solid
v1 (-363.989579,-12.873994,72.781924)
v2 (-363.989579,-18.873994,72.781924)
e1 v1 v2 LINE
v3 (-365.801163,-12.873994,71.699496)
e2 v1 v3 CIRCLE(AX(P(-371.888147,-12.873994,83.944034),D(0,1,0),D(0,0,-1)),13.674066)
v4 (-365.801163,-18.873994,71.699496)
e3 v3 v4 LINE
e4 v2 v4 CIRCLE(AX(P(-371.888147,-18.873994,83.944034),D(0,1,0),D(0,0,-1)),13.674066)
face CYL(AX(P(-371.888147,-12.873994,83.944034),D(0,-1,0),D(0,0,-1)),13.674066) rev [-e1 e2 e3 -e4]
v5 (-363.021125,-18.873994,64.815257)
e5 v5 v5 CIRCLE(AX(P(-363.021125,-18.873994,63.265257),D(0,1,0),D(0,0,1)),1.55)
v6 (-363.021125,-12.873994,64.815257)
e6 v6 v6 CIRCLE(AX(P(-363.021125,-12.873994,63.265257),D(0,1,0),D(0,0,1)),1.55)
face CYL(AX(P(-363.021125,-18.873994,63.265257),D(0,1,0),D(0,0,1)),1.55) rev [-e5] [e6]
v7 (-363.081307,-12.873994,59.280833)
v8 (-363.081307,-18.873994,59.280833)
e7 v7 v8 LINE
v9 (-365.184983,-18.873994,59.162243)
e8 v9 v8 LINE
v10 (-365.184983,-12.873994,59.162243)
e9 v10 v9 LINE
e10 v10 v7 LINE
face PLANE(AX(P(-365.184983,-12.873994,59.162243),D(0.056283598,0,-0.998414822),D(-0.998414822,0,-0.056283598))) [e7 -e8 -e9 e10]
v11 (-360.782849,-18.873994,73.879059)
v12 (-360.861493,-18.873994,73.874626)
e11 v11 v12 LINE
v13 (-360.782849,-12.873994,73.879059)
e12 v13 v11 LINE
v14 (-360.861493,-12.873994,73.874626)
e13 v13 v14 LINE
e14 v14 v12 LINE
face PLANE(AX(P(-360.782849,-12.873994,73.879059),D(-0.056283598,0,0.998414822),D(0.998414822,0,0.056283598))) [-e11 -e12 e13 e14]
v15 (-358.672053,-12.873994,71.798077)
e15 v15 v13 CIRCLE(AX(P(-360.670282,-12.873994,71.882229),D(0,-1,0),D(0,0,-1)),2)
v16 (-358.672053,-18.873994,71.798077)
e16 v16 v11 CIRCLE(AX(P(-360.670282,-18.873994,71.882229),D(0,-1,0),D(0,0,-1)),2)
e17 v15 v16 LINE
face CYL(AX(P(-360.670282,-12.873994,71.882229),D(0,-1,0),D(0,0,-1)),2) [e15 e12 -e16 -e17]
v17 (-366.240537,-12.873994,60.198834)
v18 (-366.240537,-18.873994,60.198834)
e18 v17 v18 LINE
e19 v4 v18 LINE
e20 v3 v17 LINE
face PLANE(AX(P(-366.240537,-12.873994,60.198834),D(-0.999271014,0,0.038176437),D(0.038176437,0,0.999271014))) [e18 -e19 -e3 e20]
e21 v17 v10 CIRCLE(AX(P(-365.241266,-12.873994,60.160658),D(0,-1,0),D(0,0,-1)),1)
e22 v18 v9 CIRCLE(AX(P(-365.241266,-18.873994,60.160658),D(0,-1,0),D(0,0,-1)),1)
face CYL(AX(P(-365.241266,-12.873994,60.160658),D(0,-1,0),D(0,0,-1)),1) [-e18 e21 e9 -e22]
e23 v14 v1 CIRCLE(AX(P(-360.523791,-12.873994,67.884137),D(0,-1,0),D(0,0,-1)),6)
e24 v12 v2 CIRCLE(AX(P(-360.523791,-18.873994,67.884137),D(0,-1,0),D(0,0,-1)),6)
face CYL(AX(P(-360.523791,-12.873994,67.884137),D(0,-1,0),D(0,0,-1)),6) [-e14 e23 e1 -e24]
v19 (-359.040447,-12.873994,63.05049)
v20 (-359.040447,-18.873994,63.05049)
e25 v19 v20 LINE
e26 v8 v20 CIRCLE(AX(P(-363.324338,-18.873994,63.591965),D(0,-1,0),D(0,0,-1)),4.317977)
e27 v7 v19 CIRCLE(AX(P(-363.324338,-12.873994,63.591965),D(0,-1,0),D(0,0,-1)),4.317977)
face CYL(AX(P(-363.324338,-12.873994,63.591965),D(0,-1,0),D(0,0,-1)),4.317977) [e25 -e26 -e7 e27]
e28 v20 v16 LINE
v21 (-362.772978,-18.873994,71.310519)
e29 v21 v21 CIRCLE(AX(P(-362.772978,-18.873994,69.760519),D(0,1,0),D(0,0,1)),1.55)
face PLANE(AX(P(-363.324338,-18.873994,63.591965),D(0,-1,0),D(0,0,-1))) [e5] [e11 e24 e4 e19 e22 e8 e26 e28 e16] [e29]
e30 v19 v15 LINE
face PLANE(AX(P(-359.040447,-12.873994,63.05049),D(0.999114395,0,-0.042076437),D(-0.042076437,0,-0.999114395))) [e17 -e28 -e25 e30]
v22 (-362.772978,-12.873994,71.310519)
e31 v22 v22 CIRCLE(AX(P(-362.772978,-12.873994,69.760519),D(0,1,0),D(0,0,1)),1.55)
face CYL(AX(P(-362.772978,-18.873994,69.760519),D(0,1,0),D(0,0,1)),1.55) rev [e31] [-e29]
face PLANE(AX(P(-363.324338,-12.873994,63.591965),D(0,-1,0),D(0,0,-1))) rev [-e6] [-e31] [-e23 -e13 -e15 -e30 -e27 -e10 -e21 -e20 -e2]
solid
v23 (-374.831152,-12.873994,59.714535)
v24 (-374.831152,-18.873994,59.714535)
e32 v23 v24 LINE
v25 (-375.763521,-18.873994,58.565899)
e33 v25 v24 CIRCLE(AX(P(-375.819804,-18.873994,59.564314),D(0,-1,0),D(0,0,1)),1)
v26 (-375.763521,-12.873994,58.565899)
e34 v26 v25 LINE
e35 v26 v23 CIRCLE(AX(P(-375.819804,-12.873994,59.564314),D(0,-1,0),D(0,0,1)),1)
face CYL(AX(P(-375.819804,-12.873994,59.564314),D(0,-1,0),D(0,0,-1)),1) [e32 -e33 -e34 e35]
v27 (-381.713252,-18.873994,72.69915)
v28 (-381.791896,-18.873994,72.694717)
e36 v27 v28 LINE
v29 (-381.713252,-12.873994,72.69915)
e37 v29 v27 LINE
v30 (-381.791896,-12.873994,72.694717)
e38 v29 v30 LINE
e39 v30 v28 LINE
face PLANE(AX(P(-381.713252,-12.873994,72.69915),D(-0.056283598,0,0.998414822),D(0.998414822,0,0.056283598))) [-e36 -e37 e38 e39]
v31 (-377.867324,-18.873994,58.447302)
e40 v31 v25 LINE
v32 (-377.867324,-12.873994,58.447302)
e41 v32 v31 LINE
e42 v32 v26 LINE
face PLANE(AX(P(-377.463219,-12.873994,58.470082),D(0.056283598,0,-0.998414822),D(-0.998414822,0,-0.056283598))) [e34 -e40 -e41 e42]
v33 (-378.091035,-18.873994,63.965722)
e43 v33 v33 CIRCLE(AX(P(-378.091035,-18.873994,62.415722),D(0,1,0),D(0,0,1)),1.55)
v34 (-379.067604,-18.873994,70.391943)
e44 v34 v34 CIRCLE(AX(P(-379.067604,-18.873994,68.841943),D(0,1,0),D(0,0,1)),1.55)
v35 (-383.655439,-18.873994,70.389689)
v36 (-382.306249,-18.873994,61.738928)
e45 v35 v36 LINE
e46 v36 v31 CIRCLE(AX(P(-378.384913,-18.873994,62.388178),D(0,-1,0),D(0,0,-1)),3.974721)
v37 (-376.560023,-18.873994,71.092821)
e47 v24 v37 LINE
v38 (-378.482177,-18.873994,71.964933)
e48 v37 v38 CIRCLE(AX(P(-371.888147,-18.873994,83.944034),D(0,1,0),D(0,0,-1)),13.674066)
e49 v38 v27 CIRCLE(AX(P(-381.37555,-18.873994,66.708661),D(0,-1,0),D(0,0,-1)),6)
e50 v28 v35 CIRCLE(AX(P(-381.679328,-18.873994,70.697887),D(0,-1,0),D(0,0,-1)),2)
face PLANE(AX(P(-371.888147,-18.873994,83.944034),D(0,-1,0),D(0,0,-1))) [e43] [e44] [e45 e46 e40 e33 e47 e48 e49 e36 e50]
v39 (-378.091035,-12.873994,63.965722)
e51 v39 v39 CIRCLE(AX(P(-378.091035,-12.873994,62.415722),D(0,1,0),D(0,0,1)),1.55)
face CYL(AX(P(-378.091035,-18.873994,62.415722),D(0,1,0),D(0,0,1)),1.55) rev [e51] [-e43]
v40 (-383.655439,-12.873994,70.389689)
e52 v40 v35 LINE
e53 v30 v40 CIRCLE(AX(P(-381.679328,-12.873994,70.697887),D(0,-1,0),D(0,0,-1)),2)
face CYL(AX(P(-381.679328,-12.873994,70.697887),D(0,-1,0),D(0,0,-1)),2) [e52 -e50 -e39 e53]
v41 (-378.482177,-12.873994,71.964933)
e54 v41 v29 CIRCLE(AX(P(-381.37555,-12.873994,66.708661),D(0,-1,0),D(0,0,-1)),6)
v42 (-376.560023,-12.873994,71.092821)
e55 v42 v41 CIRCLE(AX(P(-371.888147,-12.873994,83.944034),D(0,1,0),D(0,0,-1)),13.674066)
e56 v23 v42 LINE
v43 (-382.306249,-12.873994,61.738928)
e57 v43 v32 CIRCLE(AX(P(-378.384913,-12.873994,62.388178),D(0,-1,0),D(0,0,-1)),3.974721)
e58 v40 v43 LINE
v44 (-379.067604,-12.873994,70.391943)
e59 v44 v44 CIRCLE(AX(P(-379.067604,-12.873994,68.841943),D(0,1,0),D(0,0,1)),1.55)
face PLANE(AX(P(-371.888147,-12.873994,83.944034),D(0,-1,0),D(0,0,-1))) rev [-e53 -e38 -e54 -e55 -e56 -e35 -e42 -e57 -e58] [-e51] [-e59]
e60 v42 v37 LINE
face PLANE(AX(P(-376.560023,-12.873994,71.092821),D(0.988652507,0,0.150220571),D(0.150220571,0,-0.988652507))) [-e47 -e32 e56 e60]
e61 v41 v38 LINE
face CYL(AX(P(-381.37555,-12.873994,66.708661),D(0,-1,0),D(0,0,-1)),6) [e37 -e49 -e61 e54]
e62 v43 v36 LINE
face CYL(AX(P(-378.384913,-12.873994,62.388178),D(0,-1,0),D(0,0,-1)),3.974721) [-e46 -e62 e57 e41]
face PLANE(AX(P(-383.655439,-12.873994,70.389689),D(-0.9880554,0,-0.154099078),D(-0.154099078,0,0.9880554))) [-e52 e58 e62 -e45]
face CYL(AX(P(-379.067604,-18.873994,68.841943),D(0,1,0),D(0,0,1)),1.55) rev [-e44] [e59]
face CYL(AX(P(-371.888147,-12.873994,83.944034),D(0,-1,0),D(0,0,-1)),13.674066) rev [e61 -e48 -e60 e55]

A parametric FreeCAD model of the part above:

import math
import FreeCAD as App
import Part
import Sketcher
from FreeCAD import Vector

doc = App.newDocument("Part")
body = doc.addObject("PartDesign::Body", "Body")

# Sketch on XZ plane
sketch1 = body.newObject("Sketcher::SketchObject", "Sketch")
sketch1.AttachmentSupport = (doc.getObject("XZ_Plane"), [""])
sketch1.MapMode = "FlatFace"
sketch1.AttachmentOffset = App.Placement(Vector(0, 0, 18.873994), App.Rotation())
sketch1.addGeometry(Part.LineSegment(Vector(-374.83, 59.71, 0), Vector(-376.56, 71.09, 0)), False)
sketch1.addGeometry(Part.ArcOfCircle(Part.Circle(Vector(-371.89, 83.94, 0), Vector(0, 0, 1), 13.67), math.radians(-118.83), math.radians(-109.98)), False)
sketch1.addGeometry(Part.ArcOfCircle(Part.Circle(Vector(-381.38, 66.71, 0), Vector(0, 0, 1), 6), math.radians(61), math.radians(93)), False)
sketch1.addGeometry(Part.LineSegment(Vector(-381.71, 72.7, 0), Vector(-381.79, 72.69, 0)), False)
sketch1.addGeometry(Part.ArcOfCircle(Part.Circle(Vector(-381.68, 70.7, 0), Vector(0, 0, 1), 2), math.radians(93), math.radians(189)), False)
sketch1.addGeometry(Part.LineSegment(Vector(-383.66, 70.39, 0), Vector(-382.31, 61.74, 0)), False)
sketch1.addGeometry(Part.ArcOfCircle(Part.Circle(Vector(-378.38, 62.39, 0), Vector(0, 0, 1), 3.97), math.radians(-171), math.radians(-83)), False)
sketch1.addGeometry(Part.LineSegment(Vector(-377.87, 58.45, 0), Vector(-377.46, 58.47, 0)), False)
sketch1.addGeometry(Part.LineSegment(Vector(-377.46, 58.47, 0), Vector(-375.76, 58.57, 0)), False)
sketch1.addGeometry(Part.ArcOfCircle(Part.Circle(Vector(-375.82, 59.56, 0), Vector(0, 0, 1), 1), math.radians(-87), math.radians(9)), False)
sketch1.addConstraint(Sketcher.Constraint("Coincident", 0, 2, 1, 2))
sketch1.addConstraint(Sketcher.Constraint("Tangent", 1, 1, 2, 1))
sketch1.addConstraint(Sketcher.Constraint("Tangent", 2, 2, 3, 1))
sketch1.addConstraint(Sketcher.Constraint("Tangent", 3, 2, 4, 1))
sketch1.addConstraint(Sketcher.Constraint("Tangent", 4, 2, 5, 1))
sketch1.addConstraint(Sketcher.Constraint("Coincident", 5, 2, 6, 1))
sketch1.addConstraint(Sketcher.Constraint("Coincident", 6, 2, 7, 1))
sketch1.addConstraint(Sketcher.Constraint("Coincident", 7, 2, 8, 1))
sketch1.addConstraint(Sketcher.Constraint("Tangent", 8, 2, 9, 1))
sketch1.addConstraint(Sketcher.Constraint("Tangent", 9, 2, 0, 1))
sketch1.addConstraint(Sketcher.Constraint("Parallel", 3, 7))
sketch1.addConstraint(Sketcher.Constraint("Parallel", 7, 8))
sketch1.addConstraint(Sketcher.Constraint("Radius", 2, 6.0))
sketch1.addConstraint(Sketcher.Constraint("Radius", 4, 2.0))
sketch1.addConstraint(Sketcher.Constraint("Radius", 9, 1.0))
sketch1.addConstraint(Sketcher.Constraint("Radius", 6, 3.974721))
sketch1.addConstraint(Sketcher.Constraint("Radius", 1, 13.674066))
sketch1.addConstraint(Sketcher.Constraint("DistanceY", -1, 1, 6, 2, 58.447302))
sketch1.addConstraint(Sketcher.Constraint("DistanceY", -1, 1, 8, 2, 58.565899))
sketch1.addConstraint(Sketcher.Constraint("DistanceX", 2, 2, 2, 3, 0.337702))
sketch1.addConstraint(Sketcher.Constraint("DistanceY", 4, 2, 4, 3, 0.308198))
sketch1.addConstraint(Sketcher.Constraint("DistanceX", 5, 2, 2, 3, 0.930699))
sketch1.addConstraint(Sketcher.Constraint("DistanceX", 6, 2, 0, 2, 1.307301))
sketch1.addConstraint(Sketcher.Constraint("DistanceX", 7, 2, 8, 2, 1.699698))
sketch1.addConstraint(Sketcher.Constraint("Distance", 3, 0.078769))
sketch1.addConstraint(Sketcher.Constraint("DistanceX", 2, 3, -1, 1, 381.37555))
sketch1.addConstraint(Sketcher.Constraint("DistanceY", -1, 1, 2, 3, 66.708661))
sketch1.addConstraint(Sketcher.Constraint("DistanceY", -1, 1, 6, 3, 62.388178))
sketch1.addConstraint(Sketcher.Constraint("DistanceY", -1, 1, 0, 2, 71.092821))
pad1 = body.newObject("PartDesign::Pad", "Pad")
pad1.Profile = sketch1
pad1.Length = 6
pad1.Reversed = True
body2 = doc.addObject("PartDesign::Body", "Body001")

# Sketch on XZ plane
sketch2 = body2.newObject("Sketcher::SketchObject", "Sketch001")
sketch2.AttachmentSupport = (doc.getObject("XZ_Plane001"), [""])
sketch2.MapMode = "FlatFace"
sketch2.AttachmentOffset = App.Placement(Vector(0, 0, 18.873994), App.Rotation())
sketch2.addGeometry(Part.LineSegment(Vector(-365.8, 71.7, 0), Vector(-366.24, 60.2, 0)), False)
sketch2.addGeometry(Part.ArcOfCircle(Part.Circle(Vector(-365.24, 60.16, 0), Vector(0, 0, 1), 1), math.radians(178), math.radians(273)), False)
sketch2.addGeometry(Part.LineSegment(Vector(-365.18, 59.16, 0), Vector(-363.49, 59.26, 0)), False)
sketch2.addGeometry(Part.LineSegment(Vector(-363.49, 59.26, 0), Vector(-363.08, 59.28, 0)), False)
sketch2.addGeometry(Part.ArcOfCircle(Part.Circle(Vector(-363.32, 63.59, 0), Vector(0, 0, 1), 4.32), math.radians(-87), math.radians(-7)), False)
sketch2.addGeometry(Part.LineSegment(Vector(-359.04, 63.05, 0), Vector(-358.67, 71.8, 0)), False)
sketch2.addGeometry(Part.ArcOfCircle(Part.Circle(Vector(-360.67, 71.88, 0), Vector(0, 0, 1), 2), math.radians(-2), math.radians(93)), False)
sketch2.addGeometry(Part.LineSegment(Vector(-360.78, 73.88, 0), Vector(-360.86, 73.87, 0)), False)
sketch2.addGeometry(Part.ArcOfCircle(Part.Circle(Vector(-360.52, 67.88, 0), Vector(0, 0, 1), 6), math.radians(93), math.radians(125)), False)
sketch2.addGeometry(Part.ArcOfCircle(Part.Circle(Vector(-371.89, 83.94, 0), Vector(0, 0, 1), 13.67), math.radians(-63.57), math.radians(-54.72)), False)
sketch2.addConstraint(Sketcher.Constraint("Tangent", 0, 2, 1, 1))
sketch2.addConstraint(Sketcher.Constraint("Tangent", 1, 2, 2, 1))
sketch2.addConstraint(Sketcher.Constraint("Coincident", 2, 2, 3, 1))
sketch2.addConstraint(Sketcher.Constraint("Tangent", 3, 2, 4, 1))
sketch2.addConstraint(Sketcher.Constraint("Coincident", 4, 2, 5, 1))
sketch2.addConstraint(Sketcher.Constraint("Tangent", 5, 2, 6, 1))
sketch2.addConstraint(Sketcher.Constraint("Tangent", 6, 2, 7, 1))
sketch2.addConstraint(Sketcher.Constraint("Tangent", 7, 2, 8, 1))
sketch2.addConstraint(Sketcher.Constraint("Tangent", 8, 2, 9, 2))
sketch2.addConstraint(Sketcher.Constraint("Coincident", 9, 1, 0, 1))
sketch2.addConstraint(Sketcher.Constraint("Parallel", 2, 3))
sketch2.addConstraint(Sketcher.Constraint("Parallel", 3, 7))
sketch2.addConstraint(Sketcher.Constraint("Radius", 1, 1.0))
sketch2.addConstraint(Sketcher.Constraint("Radius", 6, 2.0))
sketch2.addConstraint(Sketcher.Constraint("Radius", 8, 6.0))
sketch2.addConstraint(Sketcher.Constraint("Radius", 4, 4.317977))
sketch2.addConstraint(Sketcher.Constraint("Radius", 9, 13.674066))
sketch2.addConstraint(Sketcher.Constraint("DistanceY", 3, 2, 0, 2, 0.918001))
sketch2.addConstraint(Sketcher.Constraint("DistanceX", 0, 2, 4, 3, 2.916199))
sketch2.addConstraint(Sketcher.Constraint("DistanceY", 0, 2, 9, 3, 23.7452))
sketch2.addConstraint(Sketcher.Constraint("DistanceX", 1, 2, 6, 3, 4.514701))
sketch2.addConstraint(Sketcher.Constraint("DistanceX", 7, 2, 8, 3, 0.337702))
sketch2.addConstraint(Sketcher.Constraint("Distance", 2, 1.70227))
sketch2.addConstraint(Sketcher.Constraint("Distance", 5, 8.75534))
sketch2.addConstraint(Sketcher.Constraint("Distance", 7, 0.078769))
sketch2.addConstraint(Sketcher.Constraint("DistanceX", 4, 3, -1, 1, 363.324338))
sketch2.addConstraint(Sketcher.Constraint("DistanceY", -1, 1, 6, 3, 71.882229))
sketch2.addConstraint(Sketcher.Constraint("DistanceX", 8, 2, -1, 1, 363.989579))
pad2 = body2.newObject("PartDesign::Pad", "Pad001")
pad2.Profile = sketch2
pad2.Length = 6
pad2.Reversed = True
body3 = doc.addObject("PartDesign::Body", "Body002")
body3.AllowCompound = True

# Sketch on XZ plane
sketch3 = body3.newObject("Sketcher::SketchObject", "Sketch002")
sketch3.AttachmentSupport = (doc.getObject("XZ_Plane002"), [""])
sketch3.MapMode = "FlatFace"
sketch3.AttachmentOffset = App.Placement(Vector(0, 0, 12.873994), App.Rotation())
sketch3.addGeometry(Part.Circle(Vector(-378.1, 62.4, 0), Vector(0, 0, 1), 1.6), False)
sketch3.addGeometry(Part.Circle(Vector(-379.1, 68.8, 0), Vector(0, 0, 1), 1.6), False)
sketch3.addGeometry(Part.Circle(Vector(-363, 63.3, 0), Vector(0, 0, 1), 1.6), False)
sketch3.addGeometry(Part.Circle(Vector(-362.8, 69.8, 0), Vector(0, 0, 1), 1.6), False)
sketch3.addConstraint(Sketcher.Constraint("Equal", 0, 1))
sketch3.addConstraint(Sketcher.Constraint("Equal", 1, 2))
sketch3.addConstraint(Sketcher.Constraint("Equal", 2, 3))
sketch3.addConstraint(Sketcher.Constraint("Diameter", 0, 3.1))
sketch3.addConstraint(Sketcher.Constraint("DistanceY", -1, 1, 0, 3, 62.415722))
sketch3.addConstraint(Sketcher.Constraint("DistanceX", 3, 3, -1, 1, 362.772978))
sketch3.addConstraint(Sketcher.Constraint("DistanceY", -1, 1, 3, 3, 69.760519))
sketch3.addConstraint(Sketcher.Constraint("DistanceX", 1, 3, 0, 3, 0.976569))
sketch3.addConstraint(Sketcher.Constraint("DistanceY", 0, 3, 1, 3, 6.426221))
sketch3.addConstraint(Sketcher.Constraint("DistanceX", 0, 3, 2, 3, 15.06991))
sketch3.addConstraint(Sketcher.Constraint("DistanceY", 2, 3, 3, 3, 6.495262))
sketch3.addConstraint(Sketcher.Constraint("DistanceX", 0, 3, -1, 1, 378.091035))
pad3 = body3.newObject("PartDesign::Pad", "Pad002")
pad3.Profile = sketch3
pad3.Length = 6
doc.recompute()

body4 = doc.addObject("PartDesign::Body", "Body003")
body4.BaseFeature = body3
boolean = body.newObject("PartDesign::Boolean", "Boolean")
boolean.Type = "Cut"
boolean.addObjects([body4])
doc.recompute()

boolean2 = body2.newObject("PartDesign::Boolean", "Boolean001")
boolean2.Type = "Cut"
boolean2.addObjects([body3])

doc.recompute()
